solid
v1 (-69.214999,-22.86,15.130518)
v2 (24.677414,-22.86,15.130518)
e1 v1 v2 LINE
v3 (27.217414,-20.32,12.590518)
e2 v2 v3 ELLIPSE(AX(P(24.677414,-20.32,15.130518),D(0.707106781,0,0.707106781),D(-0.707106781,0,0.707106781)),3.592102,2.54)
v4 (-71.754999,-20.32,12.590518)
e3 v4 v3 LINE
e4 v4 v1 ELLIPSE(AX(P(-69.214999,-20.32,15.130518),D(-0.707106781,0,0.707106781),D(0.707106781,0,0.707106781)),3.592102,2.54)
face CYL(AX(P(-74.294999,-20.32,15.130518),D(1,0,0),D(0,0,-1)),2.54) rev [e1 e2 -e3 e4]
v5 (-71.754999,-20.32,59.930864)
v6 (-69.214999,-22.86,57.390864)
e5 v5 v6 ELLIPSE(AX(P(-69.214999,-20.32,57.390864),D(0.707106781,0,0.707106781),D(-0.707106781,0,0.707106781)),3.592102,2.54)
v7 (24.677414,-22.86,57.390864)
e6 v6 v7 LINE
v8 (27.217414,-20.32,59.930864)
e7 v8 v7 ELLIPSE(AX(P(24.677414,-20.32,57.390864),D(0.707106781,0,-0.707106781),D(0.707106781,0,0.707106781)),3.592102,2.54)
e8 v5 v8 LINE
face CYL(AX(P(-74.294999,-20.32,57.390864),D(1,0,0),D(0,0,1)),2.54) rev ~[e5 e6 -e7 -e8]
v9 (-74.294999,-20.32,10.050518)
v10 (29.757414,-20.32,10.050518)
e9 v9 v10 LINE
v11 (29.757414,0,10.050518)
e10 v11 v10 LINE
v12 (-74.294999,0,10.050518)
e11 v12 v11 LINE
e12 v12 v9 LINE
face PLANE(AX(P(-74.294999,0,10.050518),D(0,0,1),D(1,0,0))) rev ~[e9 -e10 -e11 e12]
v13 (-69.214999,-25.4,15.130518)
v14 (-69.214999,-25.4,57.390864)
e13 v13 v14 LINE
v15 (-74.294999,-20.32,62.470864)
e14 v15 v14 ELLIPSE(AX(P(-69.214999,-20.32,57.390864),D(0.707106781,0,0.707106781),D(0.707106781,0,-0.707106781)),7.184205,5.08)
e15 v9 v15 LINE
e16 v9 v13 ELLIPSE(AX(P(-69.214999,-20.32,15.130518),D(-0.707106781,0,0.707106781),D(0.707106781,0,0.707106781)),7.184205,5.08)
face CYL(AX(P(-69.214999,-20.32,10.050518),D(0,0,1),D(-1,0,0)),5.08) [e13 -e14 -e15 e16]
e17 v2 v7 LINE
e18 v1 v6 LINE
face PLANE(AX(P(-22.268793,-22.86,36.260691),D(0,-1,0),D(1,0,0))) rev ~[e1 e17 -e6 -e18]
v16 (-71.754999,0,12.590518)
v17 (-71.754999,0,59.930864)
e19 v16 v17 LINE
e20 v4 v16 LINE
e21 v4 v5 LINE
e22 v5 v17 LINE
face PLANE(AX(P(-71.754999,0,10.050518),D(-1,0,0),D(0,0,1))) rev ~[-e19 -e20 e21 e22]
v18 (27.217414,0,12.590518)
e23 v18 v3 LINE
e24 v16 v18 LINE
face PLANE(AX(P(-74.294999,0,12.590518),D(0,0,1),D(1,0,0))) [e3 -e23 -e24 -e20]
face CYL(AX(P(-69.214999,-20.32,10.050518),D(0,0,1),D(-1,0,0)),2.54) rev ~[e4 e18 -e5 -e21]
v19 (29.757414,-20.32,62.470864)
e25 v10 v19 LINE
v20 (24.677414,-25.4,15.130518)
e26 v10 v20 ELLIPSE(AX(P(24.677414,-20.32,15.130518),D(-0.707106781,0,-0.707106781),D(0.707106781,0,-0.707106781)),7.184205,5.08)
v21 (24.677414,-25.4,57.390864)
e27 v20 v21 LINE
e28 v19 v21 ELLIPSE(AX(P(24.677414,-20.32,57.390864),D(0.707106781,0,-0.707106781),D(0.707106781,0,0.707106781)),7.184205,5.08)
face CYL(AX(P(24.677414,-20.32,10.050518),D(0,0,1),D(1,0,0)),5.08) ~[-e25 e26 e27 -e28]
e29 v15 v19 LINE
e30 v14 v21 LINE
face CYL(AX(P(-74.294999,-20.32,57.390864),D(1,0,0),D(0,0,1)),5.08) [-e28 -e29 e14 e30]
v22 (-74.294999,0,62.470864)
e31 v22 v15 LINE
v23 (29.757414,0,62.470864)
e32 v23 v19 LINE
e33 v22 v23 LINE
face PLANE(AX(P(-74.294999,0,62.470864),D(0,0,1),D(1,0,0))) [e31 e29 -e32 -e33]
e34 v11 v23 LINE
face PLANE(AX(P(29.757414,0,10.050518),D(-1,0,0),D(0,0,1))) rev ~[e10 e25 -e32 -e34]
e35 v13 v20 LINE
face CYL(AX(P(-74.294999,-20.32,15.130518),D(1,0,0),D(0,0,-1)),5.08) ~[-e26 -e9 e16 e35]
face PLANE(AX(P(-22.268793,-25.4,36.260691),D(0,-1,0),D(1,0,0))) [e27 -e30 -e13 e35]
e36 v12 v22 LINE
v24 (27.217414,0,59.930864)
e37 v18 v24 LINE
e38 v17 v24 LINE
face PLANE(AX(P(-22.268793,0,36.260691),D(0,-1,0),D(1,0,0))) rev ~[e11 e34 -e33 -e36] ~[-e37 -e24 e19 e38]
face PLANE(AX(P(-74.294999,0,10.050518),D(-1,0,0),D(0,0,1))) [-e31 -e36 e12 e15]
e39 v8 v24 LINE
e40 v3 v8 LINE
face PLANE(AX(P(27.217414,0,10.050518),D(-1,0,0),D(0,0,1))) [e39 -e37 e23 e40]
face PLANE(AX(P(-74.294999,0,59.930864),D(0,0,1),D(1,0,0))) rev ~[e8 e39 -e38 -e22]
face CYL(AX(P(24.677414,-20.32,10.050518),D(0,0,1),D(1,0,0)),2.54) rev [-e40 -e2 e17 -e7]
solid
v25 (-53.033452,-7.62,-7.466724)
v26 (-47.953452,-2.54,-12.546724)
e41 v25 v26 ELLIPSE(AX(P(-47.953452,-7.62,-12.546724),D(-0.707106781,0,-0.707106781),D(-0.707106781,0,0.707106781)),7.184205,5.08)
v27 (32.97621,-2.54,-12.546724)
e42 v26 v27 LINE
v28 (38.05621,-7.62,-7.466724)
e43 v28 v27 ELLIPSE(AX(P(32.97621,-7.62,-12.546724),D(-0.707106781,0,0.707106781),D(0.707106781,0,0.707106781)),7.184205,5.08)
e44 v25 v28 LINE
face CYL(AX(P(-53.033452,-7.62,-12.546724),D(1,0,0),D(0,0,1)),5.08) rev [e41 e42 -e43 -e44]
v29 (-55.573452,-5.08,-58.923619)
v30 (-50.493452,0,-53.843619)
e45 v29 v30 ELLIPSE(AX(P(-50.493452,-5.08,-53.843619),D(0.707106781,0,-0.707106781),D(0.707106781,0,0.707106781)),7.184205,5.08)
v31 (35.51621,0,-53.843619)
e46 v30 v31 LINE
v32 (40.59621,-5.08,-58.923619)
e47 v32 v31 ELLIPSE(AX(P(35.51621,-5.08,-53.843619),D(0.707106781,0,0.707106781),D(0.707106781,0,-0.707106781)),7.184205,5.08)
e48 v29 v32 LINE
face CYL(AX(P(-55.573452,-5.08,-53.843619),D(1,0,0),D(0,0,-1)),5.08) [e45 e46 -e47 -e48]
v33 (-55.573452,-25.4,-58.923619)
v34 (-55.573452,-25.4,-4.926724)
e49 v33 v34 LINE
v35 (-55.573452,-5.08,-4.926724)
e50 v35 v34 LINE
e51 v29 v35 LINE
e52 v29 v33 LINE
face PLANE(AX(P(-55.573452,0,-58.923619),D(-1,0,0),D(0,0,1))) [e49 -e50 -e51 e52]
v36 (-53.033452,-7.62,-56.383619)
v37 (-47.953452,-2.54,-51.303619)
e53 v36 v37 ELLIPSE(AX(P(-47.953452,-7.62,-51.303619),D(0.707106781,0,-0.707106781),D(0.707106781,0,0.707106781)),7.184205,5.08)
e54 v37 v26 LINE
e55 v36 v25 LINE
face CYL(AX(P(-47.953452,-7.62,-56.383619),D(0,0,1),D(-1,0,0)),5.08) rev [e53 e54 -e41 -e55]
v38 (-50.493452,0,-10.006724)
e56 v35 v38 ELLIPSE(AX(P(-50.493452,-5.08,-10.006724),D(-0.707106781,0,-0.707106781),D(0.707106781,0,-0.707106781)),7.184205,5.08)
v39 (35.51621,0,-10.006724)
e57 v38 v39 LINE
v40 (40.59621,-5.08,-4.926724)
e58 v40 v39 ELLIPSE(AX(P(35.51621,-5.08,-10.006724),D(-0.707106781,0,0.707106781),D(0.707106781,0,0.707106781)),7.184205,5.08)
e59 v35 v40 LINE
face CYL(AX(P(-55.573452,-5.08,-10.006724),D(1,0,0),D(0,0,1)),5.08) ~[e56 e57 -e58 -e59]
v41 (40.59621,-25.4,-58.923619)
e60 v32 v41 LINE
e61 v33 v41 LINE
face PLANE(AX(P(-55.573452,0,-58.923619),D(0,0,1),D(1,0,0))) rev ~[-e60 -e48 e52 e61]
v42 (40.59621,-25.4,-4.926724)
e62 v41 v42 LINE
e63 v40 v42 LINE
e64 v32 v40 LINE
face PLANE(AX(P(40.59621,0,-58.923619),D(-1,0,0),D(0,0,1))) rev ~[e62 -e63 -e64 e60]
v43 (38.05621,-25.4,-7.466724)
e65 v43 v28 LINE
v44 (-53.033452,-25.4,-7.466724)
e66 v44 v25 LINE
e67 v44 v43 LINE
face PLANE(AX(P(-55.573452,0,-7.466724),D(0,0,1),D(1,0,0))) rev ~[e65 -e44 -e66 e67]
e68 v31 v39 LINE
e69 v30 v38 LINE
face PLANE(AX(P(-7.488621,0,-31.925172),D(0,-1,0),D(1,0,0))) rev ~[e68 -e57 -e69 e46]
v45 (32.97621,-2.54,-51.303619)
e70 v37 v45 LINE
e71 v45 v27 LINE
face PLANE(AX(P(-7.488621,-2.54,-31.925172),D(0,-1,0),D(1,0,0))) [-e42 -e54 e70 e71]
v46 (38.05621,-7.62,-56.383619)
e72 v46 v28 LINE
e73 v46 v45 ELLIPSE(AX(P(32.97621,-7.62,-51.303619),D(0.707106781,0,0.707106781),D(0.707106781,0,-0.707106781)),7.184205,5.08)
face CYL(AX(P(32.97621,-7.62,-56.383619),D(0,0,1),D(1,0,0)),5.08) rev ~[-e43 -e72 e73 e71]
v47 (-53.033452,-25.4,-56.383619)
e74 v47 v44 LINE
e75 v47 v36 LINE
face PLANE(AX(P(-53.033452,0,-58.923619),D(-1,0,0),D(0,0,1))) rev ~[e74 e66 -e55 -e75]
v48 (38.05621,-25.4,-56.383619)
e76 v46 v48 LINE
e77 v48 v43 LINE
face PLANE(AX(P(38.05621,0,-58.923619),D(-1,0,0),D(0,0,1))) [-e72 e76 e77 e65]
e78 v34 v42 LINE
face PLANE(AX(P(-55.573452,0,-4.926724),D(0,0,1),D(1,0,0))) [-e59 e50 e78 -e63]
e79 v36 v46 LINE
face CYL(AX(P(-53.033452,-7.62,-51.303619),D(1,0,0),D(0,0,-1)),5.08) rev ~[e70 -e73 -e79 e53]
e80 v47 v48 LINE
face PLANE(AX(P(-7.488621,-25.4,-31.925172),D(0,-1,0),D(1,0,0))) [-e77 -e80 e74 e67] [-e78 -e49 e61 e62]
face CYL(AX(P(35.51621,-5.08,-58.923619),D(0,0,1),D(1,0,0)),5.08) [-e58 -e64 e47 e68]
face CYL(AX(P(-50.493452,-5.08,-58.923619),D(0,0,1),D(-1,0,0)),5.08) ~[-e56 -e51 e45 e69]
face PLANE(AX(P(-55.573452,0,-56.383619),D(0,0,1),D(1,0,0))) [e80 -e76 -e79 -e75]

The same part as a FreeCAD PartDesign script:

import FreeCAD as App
import Part
import Sketcher

V = App.Vector
Q = App.Units.Quantity


def edges_at(feature, points):
    """Names of the edges that pass closest to the given points."""
    edges = feature.Shape.Edges
    near = lambda p: min(range(len(edges)), key=lambda i: edges[i].distToShape(Part.Vertex(*p))[0])
    return sorted({f"Edge{near(p) + 1}" for p in points})


def faces_at(feature, points):
    """Names of the faces that lie closest to the given points."""
    faces = feature.Shape.Faces
    near = lambda p: min(range(len(faces)), key=lambda i: faces[i].distToShape(Part.Vertex(*p))[0])
    return sorted({f"Face{near(p) + 1}" for p in points})


def add_polygon(sketch, points):
    """Adds a closed chain of lines whose ends are joined by coincident constraints."""
    first, n = sketch.GeometryCount, len(points)
    for a, b in zip(points, points[1:] + points[:1]):
        sketch.addGeometry(Part.LineSegment(App.Vector(*a, 0), App.Vector(*b, 0)), False)
    for i in range(n):
        sketch.addConstraint(Sketcher.Constraint("Coincident", first + i, 2, first + (i + 1) % n, 1))

doc = App.newDocument("Part")
params = doc.addObject("Spreadsheet::Sheet", "Params")
for row, (alias, value) in enumerate([
    ("pad1_length", "1 in"),
    ("fillet_radius", "0.2 in"),
    ("thickness_wall", "0.1 in"),
    ("pad2_length", "1 in"),
    ("thickness2_wall", "0.1 in"),
    ("fillet2_radius", "0.2 in"),
    ("fillet3_radius", "0.2 in"),
], start=1):
    params.set(f"A{row}", alias)
    params.set(f"B{row}", "=" + value)
    params.setAlias(f"B{row}", alias)

body = doc.addObject("PartDesign::Body", "Body")

sketch1 = doc.addObject("Sketcher::SketchObject", "Sketch")
body.addObject(sketch1)
sketch1.AttachmentSupport = (doc.XZ_Plane, [""])
sketch1.MapMode = "FlatFace"
add_polygon(sketch1, [(-74, 62), (-74, 10), (30, 10), (30, 62)])
sketch1.addConstraint([
    Sketcher.Constraint("Vertical", 0),
    Sketcher.Constraint("Horizontal", 1),
    Sketcher.Constraint("Vertical", 2),
    Sketcher.Constraint("Horizontal", 3),
    Sketcher.Constraint("DistanceX", 0, 2, -1, 1, Q("2.925 in")),
    Sketcher.Constraint("DistanceX", 1, 1, 1, 2, 104.052413),
    Sketcher.Constraint("DistanceY", 0, 2, 0, 1, 52.420346),
    Sketcher.Constraint("DistanceY", -1, 1, 0, 2, 10.050518),
])
pad1 = doc.addObject("PartDesign::Pad", "Pad")
body.addObject(pad1)
pad1.Profile = sketch1
pad1.setExpression("Length", "Params.pad1_length")
doc.recompute()

fillet = doc.addObject("PartDesign::Fillet", "Fillet")
body.addObject(fillet)
fillet.Base = (pad1, edges_at(pad1, [
    (-22.269, -25.4, 10.051),
    (29.757, -25.4, 36.261),
    (-22.269, -25.4, 62.471),
    (-74.295, -25.4, 36.261),
]))
fillet.setExpression("Radius", "Params.fillet_radius")
doc.recompute()

thickness = doc.addObject("PartDesign::Thickness", "Thickness")
body.addObject(thickness)
thickness.Base = (fillet, faces_at(fillet, [(-22.269, 0, 36.261)]))
thickness.setExpression("Value", "Params.thickness_wall")
thickness.Reversed = True
thickness.Join = "Arc"
body2 = doc.addObject("PartDesign::Body", "Body001")

sketch2 = doc.addObject("Sketcher::SketchObject", "Sketch001")
body2.addObject(sketch2)
sketch2.AttachmentSupport = (doc.getObject("XZ_Plane001"), [""])
sketch2.MapMode = "FlatFace"
add_polygon(sketch2, [(-56, -5), (-56, -59), (41, -59), (41, -5)])
sketch2.addConstraint([
    Sketcher.Constraint("Vertical", 0),
    Sketcher.Constraint("Horizontal", 1),
    Sketcher.Constraint("Vertical", 2),
    Sketcher.Constraint("Horizontal", 3),
    Sketcher.Constraint("DistanceX", 1, 1, 1, 2, 96.169663),
    Sketcher.Constraint("DistanceY", 0, 2, 0, 1, 53.996895),
    Sketcher.Constraint("DistanceY", 0, 2, -1, 1, 58.923619),
    Sketcher.Constraint("DistanceX", -1, 1, 1, 2, 40.59621),
])
pad2 = doc.addObject("PartDesign::Pad", "Pad001")
body2.addObject(pad2)
pad2.Profile = sketch2
pad2.setExpression("Length", "Params.pad2_length")
doc.recompute()

thickness2 = doc.addObject("PartDesign::Thickness", "Thickness001")
body2.addObject(thickness2)
thickness2.Base = (pad2, faces_at(pad2, [(-7.489, -25.4, -31.925)]))
thickness2.setExpression("Value", "Params.thickness2_wall")
thickness2.Reversed = True
thickness2.Join = "Arc"
doc.recompute()

fillet2 = doc.addObject("PartDesign::Fillet", "Fillet001")
body2.addObject(fillet2)
fillet2.Base = (thickness2, edges_at(thickness2, [
    (-53.033, -2.54, -31.925),
    (-7.489, -2.54, -56.384),
    (38.056, -2.54, -31.925),
    (-7.489, -2.54, -7.467),
]))
fillet2.setExpression("Radius", "Params.fillet2_radius")
doc.recompute()

fillet3 = doc.addObject("PartDesign::Fillet", "Fillet002")
body2.addObject(fillet3)
fillet3.Base = (fillet2, edges_at(fillet2, [
    (-7.489, 0, -4.927),
    (-55.573, 0, -31.925),
    (-7.489, 0, -58.924),
    (40.596, 0, -31.925),
]))
fillet3.setExpression("Radius", "Params.fillet3_radius")

doc.recompute()
